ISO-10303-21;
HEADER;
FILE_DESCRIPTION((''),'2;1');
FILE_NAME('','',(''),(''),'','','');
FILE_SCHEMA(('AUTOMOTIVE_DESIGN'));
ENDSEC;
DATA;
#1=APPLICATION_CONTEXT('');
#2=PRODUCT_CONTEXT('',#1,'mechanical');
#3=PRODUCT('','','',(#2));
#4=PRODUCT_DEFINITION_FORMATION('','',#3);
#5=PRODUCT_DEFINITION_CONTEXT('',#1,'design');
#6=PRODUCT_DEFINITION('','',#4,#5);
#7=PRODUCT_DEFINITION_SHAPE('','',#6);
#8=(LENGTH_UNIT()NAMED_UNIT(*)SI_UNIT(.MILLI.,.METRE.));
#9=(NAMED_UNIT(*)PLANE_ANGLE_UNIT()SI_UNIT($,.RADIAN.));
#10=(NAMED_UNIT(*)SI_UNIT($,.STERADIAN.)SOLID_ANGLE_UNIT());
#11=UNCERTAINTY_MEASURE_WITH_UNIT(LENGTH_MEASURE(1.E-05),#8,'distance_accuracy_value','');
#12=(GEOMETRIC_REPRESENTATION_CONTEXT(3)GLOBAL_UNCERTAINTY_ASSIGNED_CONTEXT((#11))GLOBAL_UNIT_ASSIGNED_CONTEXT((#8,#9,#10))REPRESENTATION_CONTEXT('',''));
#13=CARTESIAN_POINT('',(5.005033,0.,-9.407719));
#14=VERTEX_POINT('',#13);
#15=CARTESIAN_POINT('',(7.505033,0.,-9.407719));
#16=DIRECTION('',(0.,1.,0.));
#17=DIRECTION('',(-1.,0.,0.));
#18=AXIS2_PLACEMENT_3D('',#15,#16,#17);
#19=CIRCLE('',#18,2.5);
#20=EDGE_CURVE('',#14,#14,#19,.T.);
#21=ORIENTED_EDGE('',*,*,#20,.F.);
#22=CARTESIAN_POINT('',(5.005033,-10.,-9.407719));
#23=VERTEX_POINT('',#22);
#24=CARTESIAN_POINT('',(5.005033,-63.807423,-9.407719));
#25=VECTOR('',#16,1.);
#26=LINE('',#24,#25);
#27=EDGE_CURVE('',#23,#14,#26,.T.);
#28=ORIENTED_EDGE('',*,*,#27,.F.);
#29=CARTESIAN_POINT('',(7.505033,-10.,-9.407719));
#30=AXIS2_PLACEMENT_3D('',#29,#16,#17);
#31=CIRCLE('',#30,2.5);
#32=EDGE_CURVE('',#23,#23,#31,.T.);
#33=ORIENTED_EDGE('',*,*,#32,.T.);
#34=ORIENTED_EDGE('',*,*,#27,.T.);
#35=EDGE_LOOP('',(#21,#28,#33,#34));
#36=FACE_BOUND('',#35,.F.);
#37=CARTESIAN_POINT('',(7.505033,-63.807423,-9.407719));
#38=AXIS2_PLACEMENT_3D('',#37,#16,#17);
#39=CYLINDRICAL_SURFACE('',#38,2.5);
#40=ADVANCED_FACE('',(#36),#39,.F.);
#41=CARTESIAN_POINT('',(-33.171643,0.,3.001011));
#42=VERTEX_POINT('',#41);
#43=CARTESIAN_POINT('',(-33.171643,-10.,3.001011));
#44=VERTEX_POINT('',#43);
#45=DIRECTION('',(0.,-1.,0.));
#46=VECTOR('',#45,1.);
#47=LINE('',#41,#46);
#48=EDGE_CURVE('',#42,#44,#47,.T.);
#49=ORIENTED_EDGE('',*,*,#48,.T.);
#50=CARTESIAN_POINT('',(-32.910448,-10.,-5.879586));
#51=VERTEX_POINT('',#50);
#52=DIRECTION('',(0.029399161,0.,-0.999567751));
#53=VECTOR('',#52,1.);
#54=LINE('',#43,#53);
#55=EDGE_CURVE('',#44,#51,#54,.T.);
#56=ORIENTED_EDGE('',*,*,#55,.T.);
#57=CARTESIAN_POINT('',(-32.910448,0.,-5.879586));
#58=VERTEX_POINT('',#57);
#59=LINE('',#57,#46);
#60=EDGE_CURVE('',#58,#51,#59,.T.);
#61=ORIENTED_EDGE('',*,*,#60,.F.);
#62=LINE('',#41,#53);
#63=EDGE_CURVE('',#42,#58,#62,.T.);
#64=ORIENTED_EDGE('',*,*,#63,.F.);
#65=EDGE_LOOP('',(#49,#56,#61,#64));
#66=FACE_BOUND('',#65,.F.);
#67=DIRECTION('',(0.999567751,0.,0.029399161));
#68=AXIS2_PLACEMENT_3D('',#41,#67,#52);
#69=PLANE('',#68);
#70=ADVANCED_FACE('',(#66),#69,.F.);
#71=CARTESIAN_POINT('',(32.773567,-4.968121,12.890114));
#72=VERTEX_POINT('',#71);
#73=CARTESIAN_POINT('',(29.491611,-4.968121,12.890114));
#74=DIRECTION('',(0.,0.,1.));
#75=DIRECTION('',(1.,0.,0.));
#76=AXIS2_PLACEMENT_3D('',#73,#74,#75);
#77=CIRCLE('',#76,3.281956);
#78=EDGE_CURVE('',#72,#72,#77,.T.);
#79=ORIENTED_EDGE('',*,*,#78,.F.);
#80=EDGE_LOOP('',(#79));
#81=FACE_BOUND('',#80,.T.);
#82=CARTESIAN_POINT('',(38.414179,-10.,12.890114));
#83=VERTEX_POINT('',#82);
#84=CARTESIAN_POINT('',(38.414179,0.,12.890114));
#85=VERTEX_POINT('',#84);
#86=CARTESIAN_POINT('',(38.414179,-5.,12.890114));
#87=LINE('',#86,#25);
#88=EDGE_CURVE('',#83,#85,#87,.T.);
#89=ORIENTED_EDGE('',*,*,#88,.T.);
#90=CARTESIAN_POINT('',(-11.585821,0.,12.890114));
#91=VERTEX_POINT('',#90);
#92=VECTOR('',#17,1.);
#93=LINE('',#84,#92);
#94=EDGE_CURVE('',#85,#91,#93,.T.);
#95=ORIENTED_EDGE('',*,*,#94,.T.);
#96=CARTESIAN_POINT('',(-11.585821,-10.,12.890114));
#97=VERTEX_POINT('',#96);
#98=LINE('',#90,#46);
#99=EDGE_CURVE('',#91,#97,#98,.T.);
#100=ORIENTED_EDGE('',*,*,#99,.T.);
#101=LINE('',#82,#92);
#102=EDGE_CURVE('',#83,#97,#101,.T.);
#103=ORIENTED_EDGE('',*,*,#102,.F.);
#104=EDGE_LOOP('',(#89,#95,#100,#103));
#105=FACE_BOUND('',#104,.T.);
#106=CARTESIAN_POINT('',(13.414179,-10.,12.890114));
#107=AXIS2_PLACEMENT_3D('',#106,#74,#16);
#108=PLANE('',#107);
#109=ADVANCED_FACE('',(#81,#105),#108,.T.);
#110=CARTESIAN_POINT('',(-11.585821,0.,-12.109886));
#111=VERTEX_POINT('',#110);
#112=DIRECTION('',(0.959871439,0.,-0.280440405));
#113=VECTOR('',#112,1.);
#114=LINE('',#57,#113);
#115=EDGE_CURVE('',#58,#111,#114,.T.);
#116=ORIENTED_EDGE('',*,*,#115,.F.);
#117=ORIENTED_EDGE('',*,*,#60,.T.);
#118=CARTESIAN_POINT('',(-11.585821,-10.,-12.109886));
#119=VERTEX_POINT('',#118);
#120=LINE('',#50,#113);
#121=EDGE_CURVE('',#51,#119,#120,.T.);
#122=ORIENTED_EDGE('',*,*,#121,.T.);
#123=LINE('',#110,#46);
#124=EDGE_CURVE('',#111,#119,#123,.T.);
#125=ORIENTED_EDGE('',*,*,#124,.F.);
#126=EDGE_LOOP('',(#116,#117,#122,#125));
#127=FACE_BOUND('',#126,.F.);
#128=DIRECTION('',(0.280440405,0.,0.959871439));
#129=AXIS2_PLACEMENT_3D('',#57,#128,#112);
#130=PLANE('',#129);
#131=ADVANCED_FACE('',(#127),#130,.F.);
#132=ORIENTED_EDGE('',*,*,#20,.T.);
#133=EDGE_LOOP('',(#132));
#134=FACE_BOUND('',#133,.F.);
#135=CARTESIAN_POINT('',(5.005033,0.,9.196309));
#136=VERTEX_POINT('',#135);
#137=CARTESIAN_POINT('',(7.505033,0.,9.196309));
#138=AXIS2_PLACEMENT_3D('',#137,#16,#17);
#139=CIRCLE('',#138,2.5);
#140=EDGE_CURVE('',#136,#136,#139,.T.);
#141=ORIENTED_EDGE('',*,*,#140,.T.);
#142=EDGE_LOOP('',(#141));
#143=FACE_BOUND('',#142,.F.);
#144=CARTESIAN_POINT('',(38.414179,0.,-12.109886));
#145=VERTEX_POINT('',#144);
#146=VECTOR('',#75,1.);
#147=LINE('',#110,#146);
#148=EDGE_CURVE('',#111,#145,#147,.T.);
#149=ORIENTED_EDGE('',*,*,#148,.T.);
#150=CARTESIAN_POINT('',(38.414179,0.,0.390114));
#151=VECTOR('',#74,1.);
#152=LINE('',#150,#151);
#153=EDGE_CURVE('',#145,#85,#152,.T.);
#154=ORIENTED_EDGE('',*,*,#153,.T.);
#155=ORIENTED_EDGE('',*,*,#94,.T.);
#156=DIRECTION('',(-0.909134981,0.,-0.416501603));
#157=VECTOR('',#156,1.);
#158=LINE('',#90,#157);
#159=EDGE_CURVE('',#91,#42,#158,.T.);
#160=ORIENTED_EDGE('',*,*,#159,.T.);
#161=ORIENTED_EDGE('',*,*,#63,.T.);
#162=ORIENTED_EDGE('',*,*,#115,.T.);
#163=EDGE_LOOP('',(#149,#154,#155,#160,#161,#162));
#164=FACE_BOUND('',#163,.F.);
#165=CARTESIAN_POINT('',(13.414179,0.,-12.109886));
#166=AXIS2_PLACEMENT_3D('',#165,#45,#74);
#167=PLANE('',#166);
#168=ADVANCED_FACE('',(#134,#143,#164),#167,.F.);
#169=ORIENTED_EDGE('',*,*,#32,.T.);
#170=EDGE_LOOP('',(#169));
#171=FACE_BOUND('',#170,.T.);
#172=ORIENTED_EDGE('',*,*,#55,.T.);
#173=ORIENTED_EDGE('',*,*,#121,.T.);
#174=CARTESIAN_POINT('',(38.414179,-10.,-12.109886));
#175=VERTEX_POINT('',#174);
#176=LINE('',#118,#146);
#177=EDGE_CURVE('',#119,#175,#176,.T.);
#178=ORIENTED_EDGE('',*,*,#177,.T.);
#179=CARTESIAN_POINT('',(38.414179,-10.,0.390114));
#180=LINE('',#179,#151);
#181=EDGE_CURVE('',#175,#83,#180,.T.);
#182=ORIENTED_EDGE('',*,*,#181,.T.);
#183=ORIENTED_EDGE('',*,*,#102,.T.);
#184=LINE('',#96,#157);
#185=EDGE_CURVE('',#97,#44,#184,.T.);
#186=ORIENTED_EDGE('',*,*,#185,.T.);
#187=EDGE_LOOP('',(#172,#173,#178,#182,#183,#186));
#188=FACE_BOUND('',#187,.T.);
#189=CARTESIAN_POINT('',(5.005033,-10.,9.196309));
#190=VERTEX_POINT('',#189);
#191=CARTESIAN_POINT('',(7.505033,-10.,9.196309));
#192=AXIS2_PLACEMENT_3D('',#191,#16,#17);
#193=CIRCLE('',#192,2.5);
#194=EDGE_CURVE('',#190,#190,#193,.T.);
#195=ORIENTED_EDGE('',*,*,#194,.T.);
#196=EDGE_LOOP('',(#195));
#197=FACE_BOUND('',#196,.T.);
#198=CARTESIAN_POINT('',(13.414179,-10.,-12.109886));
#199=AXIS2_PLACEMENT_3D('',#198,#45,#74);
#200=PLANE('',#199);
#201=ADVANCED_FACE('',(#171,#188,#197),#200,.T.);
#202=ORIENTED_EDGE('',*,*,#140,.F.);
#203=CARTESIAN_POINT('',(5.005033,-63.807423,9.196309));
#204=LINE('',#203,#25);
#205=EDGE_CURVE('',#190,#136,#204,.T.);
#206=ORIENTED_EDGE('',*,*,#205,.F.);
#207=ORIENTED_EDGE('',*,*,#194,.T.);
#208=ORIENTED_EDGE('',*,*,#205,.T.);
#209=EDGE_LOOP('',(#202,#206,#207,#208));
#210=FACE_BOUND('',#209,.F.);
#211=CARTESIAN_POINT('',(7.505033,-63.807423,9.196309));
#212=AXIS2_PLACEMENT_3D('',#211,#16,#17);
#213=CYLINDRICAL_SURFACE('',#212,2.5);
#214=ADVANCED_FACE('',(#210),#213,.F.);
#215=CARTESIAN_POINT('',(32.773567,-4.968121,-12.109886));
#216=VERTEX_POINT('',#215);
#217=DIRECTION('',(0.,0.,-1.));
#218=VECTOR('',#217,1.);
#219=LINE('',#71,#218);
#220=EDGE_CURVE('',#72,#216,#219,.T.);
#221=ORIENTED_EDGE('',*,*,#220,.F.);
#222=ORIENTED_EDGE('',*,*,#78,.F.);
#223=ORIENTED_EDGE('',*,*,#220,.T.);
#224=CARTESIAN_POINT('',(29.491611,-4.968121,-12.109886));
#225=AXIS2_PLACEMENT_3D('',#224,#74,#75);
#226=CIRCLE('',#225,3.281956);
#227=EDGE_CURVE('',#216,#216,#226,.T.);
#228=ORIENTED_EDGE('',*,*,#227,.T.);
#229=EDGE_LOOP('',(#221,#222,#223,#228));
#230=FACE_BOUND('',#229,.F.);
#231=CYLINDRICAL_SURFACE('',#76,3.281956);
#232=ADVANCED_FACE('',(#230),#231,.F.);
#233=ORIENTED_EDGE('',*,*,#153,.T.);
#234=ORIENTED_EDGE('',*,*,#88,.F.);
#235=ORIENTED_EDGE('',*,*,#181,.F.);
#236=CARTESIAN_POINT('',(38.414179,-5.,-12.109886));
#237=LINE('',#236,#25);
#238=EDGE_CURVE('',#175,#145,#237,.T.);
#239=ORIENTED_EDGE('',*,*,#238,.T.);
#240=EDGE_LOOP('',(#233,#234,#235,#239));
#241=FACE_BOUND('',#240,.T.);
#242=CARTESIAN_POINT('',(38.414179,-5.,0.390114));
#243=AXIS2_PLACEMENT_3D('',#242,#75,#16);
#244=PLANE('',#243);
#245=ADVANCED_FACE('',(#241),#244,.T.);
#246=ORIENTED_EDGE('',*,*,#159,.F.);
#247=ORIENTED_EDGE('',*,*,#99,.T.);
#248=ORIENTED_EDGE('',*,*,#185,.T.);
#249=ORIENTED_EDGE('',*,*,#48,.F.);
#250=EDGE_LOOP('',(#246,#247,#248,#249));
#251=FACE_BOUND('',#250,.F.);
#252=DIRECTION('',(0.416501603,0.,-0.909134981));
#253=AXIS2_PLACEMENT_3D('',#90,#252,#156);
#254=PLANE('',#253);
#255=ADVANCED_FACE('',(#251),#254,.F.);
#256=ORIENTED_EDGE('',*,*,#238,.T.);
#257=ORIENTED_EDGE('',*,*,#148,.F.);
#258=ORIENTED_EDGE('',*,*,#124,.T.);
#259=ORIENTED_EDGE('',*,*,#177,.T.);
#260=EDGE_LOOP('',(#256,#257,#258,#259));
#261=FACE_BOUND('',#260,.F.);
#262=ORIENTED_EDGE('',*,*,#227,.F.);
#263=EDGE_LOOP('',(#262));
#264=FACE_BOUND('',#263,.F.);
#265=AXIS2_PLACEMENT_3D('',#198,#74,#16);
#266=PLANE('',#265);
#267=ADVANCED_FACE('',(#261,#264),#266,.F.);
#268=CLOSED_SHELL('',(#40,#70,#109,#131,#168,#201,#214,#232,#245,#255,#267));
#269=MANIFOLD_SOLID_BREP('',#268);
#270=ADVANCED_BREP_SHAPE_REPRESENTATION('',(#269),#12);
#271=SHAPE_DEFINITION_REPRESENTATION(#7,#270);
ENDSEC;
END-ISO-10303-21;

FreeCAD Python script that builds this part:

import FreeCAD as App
import Part
import Sketcher

V = App.Vector


def add_polygon(sketch, points):
    """Adds a closed chain of lines whose ends are joined by coincident constraints."""
    first, n = sketch.GeometryCount, len(points)
    for a, b in zip(points, points[1:] + points[:1]):
        sketch.addGeometry(Part.LineSegment(App.Vector(*a, 0), App.Vector(*b, 0)), False)
    for i in range(n):
        sketch.addConstraint(Sketcher.Constraint("Coincident", first + i, 2, first + (i + 1) % n, 1))

doc = App.newDocument("Part")
body = doc.addObject("PartDesign::Body", "Body")

# Sketch on XZ plane
sketch1 = body.newObject("Sketcher::SketchObject", "Sketch")
sketch1.AttachmentSupport = (doc.getObject("XZ_Plane"), [""])
sketch1.MapMode = "FlatFace"
add_polygon(sketch1, [(-11.585821, 12.890114), (-33.171643, 3.001011), (-32.910448, -5.879586), (-11.585821, -12.109886), (13.414179, -12.109886), (13.414179, 12.890114)])  # lines 0-5
sketch1.addConstraint([
    Sketcher.Constraint("Horizontal", 3),
    Sketcher.Constraint("Vertical", 4),
    Sketcher.Constraint("Horizontal", 5),
    Sketcher.Constraint("Vertical", 2, 2, 5, 2),
    Sketcher.Constraint("Equal", 5, 4),
    Sketcher.Constraint("DistanceX", 3, 1, 3, 2, 25.0),
    Sketcher.Constraint("DistanceY", 2, 2, 1, 2, 6.2303),
    Sketcher.Constraint("Distance", 2, 22.216128),
    Sketcher.Constraint("DistanceY", -1, 1, 0, 2, 3.001011),
    Sketcher.Constraint("DistanceX", 1, 2, -1, 1, 32.910448),
    Sketcher.Constraint("Distance", 0, 23.743253),
    Sketcher.Constraint("Distance", 1, 8.884437),
])
pad1 = body.newObject("PartDesign::Pad", "Pad")
pad1.Profile = sketch1
pad1.Length = 10

# Sketch on XZ plane
sketch2 = body.newObject("Sketcher::SketchObject", "Sketch001")
sketch2.AttachmentSupport = (doc.getObject("XZ_Plane"), [""])
sketch2.MapMode = "FlatFace"
sketch2.AttachmentOffset = App.Placement(V(0, 0, 10), App.Rotation())
sketch2.addGeometry([
    Part.Circle(V(7.505033, 9.196309, 0), V(0, 0, 1), 2.5),
    Part.Circle(V(7.505033, -9.407719, 0), V(0, 0, 1), 2.5),
], False)
sketch2.addConstraint([
    Sketcher.Constraint("Equal", 0, 1),
    Sketcher.Constraint("Vertical", 0, 3, 1, 3),
    Sketcher.Constraint("Diameter", 0, 5.0),
    Sketcher.Constraint("DistanceY", -1, 1, 0, 3, 9.196309),
    Sketcher.Constraint("DistanceY", 1, 3, -1, 1, 9.407719),
    Sketcher.Constraint("DistanceX", -1, 1, 0, 3, 7.505033),
])
doc.recompute()
hole = body.newObject("PartDesign::Hole", "Hole")
hole.Profile = sketch2
hole.ThreadType = "None"
hole.Diameter = 5
hole.DepthType = "ThroughAll"

# Sketch on YZ plane
sketch3 = body.newObject("Sketcher::SketchObject", "Sketch002")
sketch3.AttachmentSupport = (doc.getObject("YZ_Plane"), [""])
sketch3.MapMode = "FlatFace"
sketch3.AttachmentOffset = App.Placement(V(0, 0, 13.414179), App.Rotation())
add_polygon(sketch3, [(-10, 12.890114), (-10, -12.109886), (0, -12.109886), (0, 12.890114)])  # lines 0-3
sketch3.addConstraint([
    Sketcher.Constraint("Vertical", 0),
    Sketcher.Constraint("Horizontal", 1),
    Sketcher.Constraint("Vertical", 2),
    Sketcher.Constraint("Horizontal", 3),
    Sketcher.Constraint("PointOnObject", 1, 2, -2),
    Sketcher.Constraint("DistanceX", 1, 1, 1, 2, 10.0),
    Sketcher.Constraint("DistanceY", 0, 2, 0, 1, 25.0),
    Sketcher.Constraint("DistanceY", 0, 2, -1, 1, 12.109886),
])
pad2 = body.newObject("PartDesign::Pad", "Pad001")
pad2.Profile = sketch3
pad2.Length = 25

# Sketch on XY plane
sketch4 = body.newObject("Sketcher::SketchObject", "Sketch003")
sketch4.AttachmentSupport = (doc.getObject("XY_Plane"), [""])
sketch4.MapMode = "FlatFace"
sketch4.AttachmentOffset = App.Placement(V(0, 0, 12.890114), App.Rotation())
sketch4.addGeometry(Part.Circle(V(29.491611, -4.968121, 0), V(0, 0, 1), 3.281956), False)
sketch4.addConstraint([
    Sketcher.Constraint("Diameter", 0, 6.563912),
    Sketcher.Constraint("DistanceX", -1, 1, 0, 3, 29.491611),
    Sketcher.Constraint("DistanceY", 0, 3, -1, 1, 4.968121),
])
pocket1 = body.newObject("PartDesign::Pocket", "Pocket")
pocket1.Profile = sketch4
pocket1.Length = 25

doc.recompute()
